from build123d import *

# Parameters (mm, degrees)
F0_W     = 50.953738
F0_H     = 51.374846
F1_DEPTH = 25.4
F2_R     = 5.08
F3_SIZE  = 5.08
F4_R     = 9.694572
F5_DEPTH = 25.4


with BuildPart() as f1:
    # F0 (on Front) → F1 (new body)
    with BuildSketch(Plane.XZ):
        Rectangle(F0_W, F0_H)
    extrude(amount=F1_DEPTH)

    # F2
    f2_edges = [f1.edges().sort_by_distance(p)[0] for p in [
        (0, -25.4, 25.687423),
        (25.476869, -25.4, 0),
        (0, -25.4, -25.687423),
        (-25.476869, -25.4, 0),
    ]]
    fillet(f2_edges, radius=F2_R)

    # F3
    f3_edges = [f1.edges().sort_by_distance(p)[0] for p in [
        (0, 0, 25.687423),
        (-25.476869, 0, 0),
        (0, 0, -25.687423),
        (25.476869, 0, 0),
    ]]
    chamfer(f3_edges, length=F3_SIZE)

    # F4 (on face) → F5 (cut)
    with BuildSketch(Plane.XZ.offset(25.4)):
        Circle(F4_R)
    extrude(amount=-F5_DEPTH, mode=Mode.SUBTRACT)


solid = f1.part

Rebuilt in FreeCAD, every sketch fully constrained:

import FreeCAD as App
import Part
import Sketcher

V = App.Vector
Q = App.Units.Quantity


def edges_at(feature, points):
    """Names of the edges that pass closest to the given points."""
    edges = feature.Shape.Edges
    near = lambda p: min(range(len(edges)), key=lambda i: edges[i].distToShape(Part.Vertex(*p))[0])
    return sorted({f"Edge{near(p) + 1}" for p in points})


def add_polygon(sketch, points):
    """Adds a closed chain of lines whose ends are joined by coincident constraints."""
    first, n = sketch.GeometryCount, len(points)
    for a, b in zip(points, points[1:] + points[:1]):
        sketch.addGeometry(Part.LineSegment(App.Vector(*a, 0), App.Vector(*b, 0)), False)
    for i in range(n):
        sketch.addConstraint(Sketcher.Constraint("Coincident", first + i, 2, first + (i + 1) % n, 1))

doc = App.newDocument("Part")
body = doc.addObject("PartDesign::Body", "Body")

# Sketch on XZ plane
sketch1 = body.newObject("Sketcher::SketchObject", "Sketch")
sketch1.AttachmentSupport = (doc.getObject("XZ_Plane"), [""])
sketch1.MapMode = "FlatFace"
add_polygon(sketch1, [(-25, 26), (-25, -26), (25, -26), (25, 26)])  # lines 0-3
sketch1.addConstraint(Sketcher.Constraint("Vertical", 0))
sketch1.addConstraint(Sketcher.Constraint("Horizontal", 1))
sketch1.addConstraint(Sketcher.Constraint("Vertical", 2))
sketch1.addConstraint(Sketcher.Constraint("Horizontal", 3))
sketch1.addConstraint(Sketcher.Constraint("Symmetric", 0, 2, 2, 2, -1, 1))
sketch1.addConstraint(Sketcher.Constraint("DistanceX", 1, 1, 1, 2, Q("50.953738 mm")))
sketch1.addConstraint(Sketcher.Constraint("DistanceY", 0, 2, 0, 1, Q("51.374846 mm")))
pad1 = body.newObject("PartDesign::Pad", "Pad")
pad1.Profile = sketch1
pad1.Length = Q("1 in")
doc.recompute()

fillet = body.newObject("PartDesign::Fillet", "Fillet")
fillet.Base = (pad1, edges_at(pad1, [
    (0, -25.4, 25.687),
    (25.477, -25.4, 0),
    (0, -25.4, -25.687),
    (-25.477, -25.4, 0),
]))
fillet.Radius = Q("0.2 in")
doc.recompute()

chamfer = body.newObject("PartDesign::Chamfer", "Chamfer")
chamfer.Base = (fillet, edges_at(fillet, [
    (0, 0, 25.687),
    (-25.477, 0, 0),
    (0, 0, -25.687),
    (25.477, 0, 0),
]))
chamfer.Size = Q("0.2 in")

# Sketch on XZ plane
sketch2 = body.newObject("Sketcher::SketchObject", "Sketch001")
sketch2.AttachmentSupport = (doc.getObject("XZ_Plane"), [""])
sketch2.MapMode = "FlatFace"
sketch2.AttachmentOffset = App.Placement(V(0, 0, 1 * 25.4), App.Rotation())
sketch2.addGeometry(Part.Circle(V(0, 0, 0), V(0, 0, 1), 10), False)
sketch2.addConstraint(Sketcher.Constraint("Coincident", 0, 3, -1, 1))
sketch2.addConstraint(Sketcher.Constraint("Diameter", 0, Q("19.389144 mm")))
pocket1 = body.newObject("PartDesign::Pocket", "Pocket")
pocket1.Profile = sketch2
pocket1.Length = Q("1 in")

doc.recompute()
